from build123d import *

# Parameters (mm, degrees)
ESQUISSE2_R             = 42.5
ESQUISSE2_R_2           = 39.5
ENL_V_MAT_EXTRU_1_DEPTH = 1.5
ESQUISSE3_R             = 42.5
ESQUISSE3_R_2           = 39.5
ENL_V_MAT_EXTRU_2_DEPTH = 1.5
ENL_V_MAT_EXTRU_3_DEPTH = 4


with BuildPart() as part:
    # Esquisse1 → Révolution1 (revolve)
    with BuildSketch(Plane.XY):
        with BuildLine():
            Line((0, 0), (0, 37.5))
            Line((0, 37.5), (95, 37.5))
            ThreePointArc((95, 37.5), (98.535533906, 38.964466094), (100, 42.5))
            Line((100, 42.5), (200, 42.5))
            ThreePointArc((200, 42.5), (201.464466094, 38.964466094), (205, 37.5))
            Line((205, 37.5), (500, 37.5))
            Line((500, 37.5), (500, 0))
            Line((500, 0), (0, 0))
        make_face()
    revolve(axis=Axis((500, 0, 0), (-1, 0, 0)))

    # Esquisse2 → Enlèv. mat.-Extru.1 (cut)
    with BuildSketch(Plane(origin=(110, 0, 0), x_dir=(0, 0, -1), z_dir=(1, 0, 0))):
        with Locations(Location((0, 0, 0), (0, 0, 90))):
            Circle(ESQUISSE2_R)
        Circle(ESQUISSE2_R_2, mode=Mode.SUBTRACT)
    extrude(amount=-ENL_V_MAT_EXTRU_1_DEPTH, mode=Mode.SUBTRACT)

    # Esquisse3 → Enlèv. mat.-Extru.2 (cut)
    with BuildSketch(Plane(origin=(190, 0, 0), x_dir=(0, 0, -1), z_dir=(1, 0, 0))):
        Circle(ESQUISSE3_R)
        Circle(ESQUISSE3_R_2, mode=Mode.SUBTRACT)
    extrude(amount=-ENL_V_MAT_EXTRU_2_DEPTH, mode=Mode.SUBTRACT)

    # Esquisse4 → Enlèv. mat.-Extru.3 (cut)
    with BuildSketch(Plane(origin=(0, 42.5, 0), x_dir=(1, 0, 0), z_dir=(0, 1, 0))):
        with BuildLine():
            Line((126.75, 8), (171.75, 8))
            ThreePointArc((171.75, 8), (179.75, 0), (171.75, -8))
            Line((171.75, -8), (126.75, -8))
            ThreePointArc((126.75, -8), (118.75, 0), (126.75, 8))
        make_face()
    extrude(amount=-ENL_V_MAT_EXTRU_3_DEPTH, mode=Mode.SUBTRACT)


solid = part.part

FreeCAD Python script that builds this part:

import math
import FreeCAD as App
import Part
import Sketcher

doc = App.newDocument("Part")
body = doc.addObject("PartDesign::Body", "Body")

# Sketch on XY plane
sketch1 = doc.addObject("Sketcher::SketchObject", "Sketch")
body.addObject(sketch1)
sketch1.AttachmentSupport = (doc.XY_Plane, [""])
sketch1.MapMode = "FlatFace"
sketch1.addGeometry(Part.LineSegment(App.Vector(0, 37.5, 0), App.Vector(0, 0, 0)), False)
sketch1.addGeometry(Part.LineSegment(App.Vector(0, 0, 0), App.Vector(500, 0, 0)), False)
sketch1.addGeometry(Part.LineSegment(App.Vector(500, 0, 0), App.Vector(500, 37.5, 0)), False)
sketch1.addGeometry(Part.LineSegment(App.Vector(500, 37.5, 0), App.Vector(205, 37.5, 0)), False)
sketch1.addGeometry(Part.ArcOfCircle(Part.Circle(App.Vector(205, 42.5, 0), App.Vector(0, 0, 1), 5), math.radians(180), math.radians(270)), False)
sketch1.addGeometry(Part.LineSegment(App.Vector(200, 42.5, 0), App.Vector(100, 42.5, 0)), False)
sketch1.addGeometry(Part.ArcOfCircle(Part.Circle(App.Vector(95, 42.5, 0), App.Vector(0, 0, 1), 5), math.radians(-90), math.radians(0)), False)
sketch1.addGeometry(Part.LineSegment(App.Vector(95, 37.5, 0), App.Vector(0, 37.5, 0)), False)
sketch1.addConstraint(Sketcher.Constraint("Coincident", 0, 2, 1, 1))
sketch1.addConstraint(Sketcher.Constraint("Coincident", 1, 2, 2, 1))
sketch1.addConstraint(Sketcher.Constraint("Coincident", 2, 2, 3, 1))
sketch1.addConstraint(Sketcher.Constraint("Tangent", 3, 2, 4, 2))
sketch1.addConstraint(Sketcher.Constraint("Coincident", 4, 1, 5, 1))
sketch1.addConstraint(Sketcher.Constraint("Coincident", 5, 2, 6, 2))
sketch1.addConstraint(Sketcher.Constraint("Tangent", 6, 1, 7, 1))
sketch1.addConstraint(Sketcher.Constraint("Coincident", 7, 2, 0, 1))
sketch1.addConstraint(Sketcher.Constraint("Vertical", 0))
sketch1.addConstraint(Sketcher.Constraint("Horizontal", 1))
sketch1.addConstraint(Sketcher.Constraint("Vertical", 2))
sketch1.addConstraint(Sketcher.Constraint("Horizontal", 3))
sketch1.addConstraint(Sketcher.Constraint("Horizontal", 5))
sketch1.addConstraint(Sketcher.Constraint("Horizontal", 7))
sketch1.addConstraint(Sketcher.Constraint("Coincident", 0, 2, -1, 1))
sketch1.addConstraint(Sketcher.Constraint("Equal", 4, 6))
sketch1.addConstraint(Sketcher.Constraint("Horizontal", 4, 3, 6, 3))
sketch1.addConstraint(Sketcher.Constraint("Horizontal", 6, 3, 4, 1))
sketch1.addConstraint(Sketcher.Constraint("Radius", 4, 5.0))
sketch1.addConstraint(Sketcher.Constraint("DistanceX", 1, 1, 1, 2, 500.0))
sketch1.addConstraint(Sketcher.Constraint("DistanceX", 3, 2, 3, 1, 295.0))
sketch1.addConstraint(Sketcher.Constraint("DistanceX", 5, 2, 5, 1, 100.0))
sketch1.addConstraint(Sketcher.Constraint("DistanceY", 0, 2, 0, 1, 37.5))
revolution = doc.addObject("PartDesign::Revolution", "Revolution")
body.addObject(revolution)
revolution.Profile = sketch1
revolution.ReferenceAxis = (sketch1, ["H_Axis"])
revolution.Angle = 360

# Sketch on YZ plane
sketch2 = doc.addObject("Sketcher::SketchObject", "Sketch001")
body.addObject(sketch2)
sketch2.AttachmentSupport = (doc.YZ_Plane, [""])
sketch2.MapMode = "FlatFace"
sketch2.AttachmentOffset = App.Placement(App.Vector(0, 0, 110), App.Rotation())
sketch2.addGeometry(Part.Circle(App.Vector(0, 0, 0), App.Vector(0, 0, 1), 42.5), False)
sketch2.addGeometry(Part.Circle(App.Vector(0, 0, 0), App.Vector(0, 0, 1), 39.5), False)
sketch2.addConstraint(Sketcher.Constraint("Coincident", 0, 3, -1, 1))
sketch2.addConstraint(Sketcher.Constraint("Coincident", 1, 3, -1, 1))
sketch2.addConstraint(Sketcher.Constraint("Diameter", 0, 85.0))
sketch2.addConstraint(Sketcher.Constraint("Diameter", 1, 79.0))
pocket1 = doc.addObject("PartDesign::Pocket", "Pocket")
body.addObject(pocket1)
pocket1.Profile = sketch2
pocket1.Length = 1.5

# Sketch on YZ plane
sketch3 = doc.addObject("Sketcher::SketchObject", "Sketch002")
body.addObject(sketch3)
sketch3.AttachmentSupport = (doc.YZ_Plane, [""])
sketch3.MapMode = "FlatFace"
sketch3.AttachmentOffset = App.Placement(App.Vector(0, 0, 190), App.Rotation())
sketch3.addGeometry(Part.Circle(App.Vector(0, 0, 0), App.Vector(0, 0, 1), 42.5), False)
sketch3.addGeometry(Part.Circle(App.Vector(0, 0, 0), App.Vector(0, 0, 1), 39.5), False)
sketch3.addConstraint(Sketcher.Constraint("Coincident", 0, 3, -1, 1))
sketch3.addConstraint(Sketcher.Constraint("Coincident", 1, 3, -1, 1))
sketch3.addConstraint(Sketcher.Constraint("Diameter", 0, 85.0))
sketch3.addConstraint(Sketcher.Constraint("Diameter", 1, 79.0))
pocket2 = doc.addObject("PartDesign::Pocket", "Pocket001")
body.addObject(pocket2)
pocket2.Profile = sketch3
pocket2.Length = 1.5

# Sketch on XZ plane
sketch4 = doc.addObject("Sketcher::SketchObject", "Sketch003")
body.addObject(sketch4)
sketch4.AttachmentSupport = (doc.XZ_Plane, [""])
sketch4.MapMode = "FlatFace"
sketch4.AttachmentOffset = App.Placement(App.Vector(0, 0, -42.5), App.Rotation())
sketch4.addGeometry(Part.LineSegment(App.Vector(171.75, -8, 0), App.Vector(126.75, -8, 0)), False)
sketch4.addGeometry(Part.ArcOfCircle(Part.Circle(App.Vector(126.75, 0, 0), App.Vector(0, 0, 1), 8), math.radians(90), math.radians(270)), False)
sketch4.addGeometry(Part.LineSegment(App.Vector(126.75, 8, 0), App.Vector(171.75, 8, 0)), False)
sketch4.addGeometry(Part.ArcOfCircle(Part.Circle(App.Vector(171.75, 0, 0), App.Vector(0, 0, 1), 8), math.radians(-90), math.radians(90)), False)
sketch4.addConstraint(Sketcher.Constraint("Tangent", 0, 2, 1, 2))
sketch4.addConstraint(Sketcher.Constraint("Tangent", 1, 1, 2, 1))
sketch4.addConstraint(Sketcher.Constraint("Tangent", 2, 2, 3, 2))
sketch4.addConstraint(Sketcher.Constraint("Tangent", 3, 1, 0, 1))
sketch4.addConstraint(Sketcher.Constraint("Horizontal", 0))
sketch4.addConstraint(Sketcher.Constraint("Horizontal", 2))
sketch4.addConstraint(Sketcher.Constraint("PointOnObject", 1, 3, -1))
sketch4.addConstraint(Sketcher.Constraint("Radius", 1, 8.0))
sketch4.addConstraint(Sketcher.Constraint("DistanceX", 0, 2, 0, 1, 45.0))
sketch4.addConstraint(Sketcher.Constraint("DistanceX", -1, 1, 1, 3, 126.75))
pocket3 = doc.addObject("PartDesign::Pocket", "Pocket002")
body.addObject(pocket3)
pocket3.Profile = sketch4
pocket3.Length = 4
pocket3.Reversed = True

doc.recompute()
